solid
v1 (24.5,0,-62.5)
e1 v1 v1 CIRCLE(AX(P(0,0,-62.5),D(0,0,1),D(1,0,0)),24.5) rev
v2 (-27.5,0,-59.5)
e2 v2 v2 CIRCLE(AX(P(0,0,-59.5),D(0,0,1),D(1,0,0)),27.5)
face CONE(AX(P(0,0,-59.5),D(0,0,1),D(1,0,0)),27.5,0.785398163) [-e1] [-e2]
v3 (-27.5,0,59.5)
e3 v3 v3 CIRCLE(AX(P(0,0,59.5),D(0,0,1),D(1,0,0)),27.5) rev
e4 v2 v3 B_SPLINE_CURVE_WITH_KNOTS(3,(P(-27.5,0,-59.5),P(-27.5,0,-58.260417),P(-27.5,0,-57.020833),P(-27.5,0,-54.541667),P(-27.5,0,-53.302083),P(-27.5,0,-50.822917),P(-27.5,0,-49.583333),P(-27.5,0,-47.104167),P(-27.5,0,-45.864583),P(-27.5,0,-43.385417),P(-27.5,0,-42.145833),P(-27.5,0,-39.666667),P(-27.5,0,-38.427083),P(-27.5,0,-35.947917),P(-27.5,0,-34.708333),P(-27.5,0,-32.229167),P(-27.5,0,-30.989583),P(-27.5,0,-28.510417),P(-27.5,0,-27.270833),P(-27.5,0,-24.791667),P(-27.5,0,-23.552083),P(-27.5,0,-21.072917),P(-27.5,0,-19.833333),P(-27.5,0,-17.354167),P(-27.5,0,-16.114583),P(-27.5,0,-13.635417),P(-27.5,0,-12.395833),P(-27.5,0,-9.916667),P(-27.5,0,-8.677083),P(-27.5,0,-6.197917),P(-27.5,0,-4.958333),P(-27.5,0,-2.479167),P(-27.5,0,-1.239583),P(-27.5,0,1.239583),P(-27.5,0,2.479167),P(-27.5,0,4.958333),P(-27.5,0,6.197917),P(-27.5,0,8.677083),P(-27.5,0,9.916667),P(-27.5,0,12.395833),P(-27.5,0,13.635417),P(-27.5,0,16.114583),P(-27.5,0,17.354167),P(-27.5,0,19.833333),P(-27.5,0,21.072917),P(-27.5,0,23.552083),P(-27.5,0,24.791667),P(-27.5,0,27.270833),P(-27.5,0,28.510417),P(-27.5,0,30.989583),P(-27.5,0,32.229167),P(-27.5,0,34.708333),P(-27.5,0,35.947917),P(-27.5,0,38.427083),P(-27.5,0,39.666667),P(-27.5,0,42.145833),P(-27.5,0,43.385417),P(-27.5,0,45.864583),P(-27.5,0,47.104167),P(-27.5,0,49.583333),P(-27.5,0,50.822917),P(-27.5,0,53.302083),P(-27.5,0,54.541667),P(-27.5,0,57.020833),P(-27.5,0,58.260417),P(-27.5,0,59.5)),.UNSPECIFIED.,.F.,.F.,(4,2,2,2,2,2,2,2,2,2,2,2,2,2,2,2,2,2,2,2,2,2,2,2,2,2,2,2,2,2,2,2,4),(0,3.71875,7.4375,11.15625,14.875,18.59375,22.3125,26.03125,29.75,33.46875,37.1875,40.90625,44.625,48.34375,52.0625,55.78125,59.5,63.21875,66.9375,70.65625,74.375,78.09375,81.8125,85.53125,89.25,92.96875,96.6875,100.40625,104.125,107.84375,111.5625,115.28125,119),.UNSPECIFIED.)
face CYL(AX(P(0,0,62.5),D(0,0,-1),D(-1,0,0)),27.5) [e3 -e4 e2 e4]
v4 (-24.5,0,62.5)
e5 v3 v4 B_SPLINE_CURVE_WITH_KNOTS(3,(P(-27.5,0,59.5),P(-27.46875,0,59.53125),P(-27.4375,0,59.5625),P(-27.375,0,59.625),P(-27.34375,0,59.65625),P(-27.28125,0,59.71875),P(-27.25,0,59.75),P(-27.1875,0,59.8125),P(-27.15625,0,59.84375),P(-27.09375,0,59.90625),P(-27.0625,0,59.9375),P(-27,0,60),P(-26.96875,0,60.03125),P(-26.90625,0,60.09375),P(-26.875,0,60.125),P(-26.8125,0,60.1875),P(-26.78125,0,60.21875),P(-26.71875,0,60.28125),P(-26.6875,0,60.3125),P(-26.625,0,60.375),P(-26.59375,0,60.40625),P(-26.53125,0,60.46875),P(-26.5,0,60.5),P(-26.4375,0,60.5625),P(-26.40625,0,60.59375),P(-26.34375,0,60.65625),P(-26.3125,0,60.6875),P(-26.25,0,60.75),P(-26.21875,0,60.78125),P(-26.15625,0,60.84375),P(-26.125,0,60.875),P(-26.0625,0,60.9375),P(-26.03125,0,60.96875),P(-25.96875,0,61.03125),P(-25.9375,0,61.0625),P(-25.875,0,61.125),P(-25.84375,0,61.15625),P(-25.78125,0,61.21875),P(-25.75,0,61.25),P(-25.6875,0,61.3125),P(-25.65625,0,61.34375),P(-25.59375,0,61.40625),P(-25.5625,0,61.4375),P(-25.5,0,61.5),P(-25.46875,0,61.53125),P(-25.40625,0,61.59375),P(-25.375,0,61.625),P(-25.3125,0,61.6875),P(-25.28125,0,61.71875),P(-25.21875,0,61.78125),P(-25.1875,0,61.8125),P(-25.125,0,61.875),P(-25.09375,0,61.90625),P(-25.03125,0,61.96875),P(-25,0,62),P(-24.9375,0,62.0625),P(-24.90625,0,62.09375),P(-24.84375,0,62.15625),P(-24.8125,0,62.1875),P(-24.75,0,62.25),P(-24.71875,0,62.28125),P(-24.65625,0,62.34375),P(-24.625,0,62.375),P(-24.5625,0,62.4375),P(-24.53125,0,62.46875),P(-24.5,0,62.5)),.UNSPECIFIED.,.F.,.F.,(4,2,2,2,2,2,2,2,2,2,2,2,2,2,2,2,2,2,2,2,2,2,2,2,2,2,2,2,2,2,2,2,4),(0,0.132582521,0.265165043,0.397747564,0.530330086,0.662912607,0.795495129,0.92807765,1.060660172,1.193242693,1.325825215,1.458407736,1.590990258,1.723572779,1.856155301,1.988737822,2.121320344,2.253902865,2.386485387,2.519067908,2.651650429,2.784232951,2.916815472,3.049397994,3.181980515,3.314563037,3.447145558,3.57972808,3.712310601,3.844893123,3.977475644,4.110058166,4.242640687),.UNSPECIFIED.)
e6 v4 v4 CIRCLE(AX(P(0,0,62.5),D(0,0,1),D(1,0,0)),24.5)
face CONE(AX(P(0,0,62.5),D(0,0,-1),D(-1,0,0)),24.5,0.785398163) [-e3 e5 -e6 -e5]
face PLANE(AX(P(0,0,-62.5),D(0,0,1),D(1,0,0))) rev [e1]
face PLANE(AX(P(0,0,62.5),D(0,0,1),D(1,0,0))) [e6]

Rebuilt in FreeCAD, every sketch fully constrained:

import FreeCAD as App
import Part
import Sketcher
from FreeCAD import Vector


def edges_at(feature, points):
    """Names of the edges that pass closest to the given points."""
    edges = feature.Shape.Edges
    near = lambda p: min(range(len(edges)), key=lambda i: edges[i].distToShape(Part.Vertex(*p))[0])
    return sorted({f"Edge{near(p) + 1}" for p in points})

doc = App.newDocument("Part")
params = doc.addObject("Spreadsheet::Sheet", "Params")
for row, (alias, value) in enumerate([
    ("sketch1_diameter", "55 mm"),
    ("pad1_length", "125 mm"),
    ("chamfer_size", "3 mm"),
], start=1):
    params.set(f"A{row}", alias)
    params.set(f"B{row}", "=" + value)
    params.setAlias(f"B{row}", alias)

body = doc.addObject("PartDesign::Body", "Body")

# Sketch on XY plane
sketch1 = body.newObject("Sketcher::SketchObject", "Sketch")
sketch1.AttachmentSupport = (doc.getObject("XY_Plane"), [""])
sketch1.MapMode = "FlatFace"
sketch1.addGeometry(Part.Circle(Vector(0, 0, 0), Vector(0, 0, 1), 27.5), False)
sketch1.addConstraint([
    Sketcher.Constraint("Coincident", 0, 3, -1, 1),
    Sketcher.Constraint("Diameter", 0, 55.0),
])
sketch1.setExpression("Constraints[1]", "Params.sketch1_diameter")
pad1 = body.newObject("PartDesign::Pad", "Pad")
pad1.Profile = sketch1
pad1.setExpression("Length", "Params.pad1_length")
pad1.Midplane = True
doc.recompute()

chamfer = body.newObject("PartDesign::Chamfer", "Chamfer")
chamfer.Base = (pad1, edges_at(pad1, [(-27.5, 0, -62.5), (-27.5, 0, 62.5)]))
chamfer.setExpression("Size", "Params.chamfer_size")

doc.recompute()
